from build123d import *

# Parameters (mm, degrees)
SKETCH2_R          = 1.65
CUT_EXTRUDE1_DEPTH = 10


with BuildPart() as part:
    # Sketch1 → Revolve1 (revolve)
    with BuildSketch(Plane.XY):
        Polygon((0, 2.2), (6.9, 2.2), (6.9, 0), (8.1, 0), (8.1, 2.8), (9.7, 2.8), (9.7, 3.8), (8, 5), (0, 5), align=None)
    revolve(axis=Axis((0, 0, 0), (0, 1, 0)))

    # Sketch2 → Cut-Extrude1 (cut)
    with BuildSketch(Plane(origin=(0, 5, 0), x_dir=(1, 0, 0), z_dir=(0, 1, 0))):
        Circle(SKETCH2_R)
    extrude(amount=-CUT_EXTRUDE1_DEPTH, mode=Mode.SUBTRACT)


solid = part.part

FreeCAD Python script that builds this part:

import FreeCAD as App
import Part
import Sketcher

doc = App.newDocument("Part")
body = doc.addObject("PartDesign::Body", "Body")

sketch1 = body.newObject("Sketcher::SketchObject", "Sketch")
sketch1.AttachmentSupport = (doc.getObject("XY_Plane"), [""])
sketch1.MapMode = "FlatFace"
sketch1.addGeometry([
    Part.LineSegment(App.Vector(0, 2.2, 0), App.Vector(6.9, 2.2, 0)),
    Part.LineSegment(App.Vector(6.9, 2.2, 0), App.Vector(6.9, 0, 0)),
    Part.LineSegment(App.Vector(6.9, 0, 0), App.Vector(8.1, 0, 0)),
    Part.LineSegment(App.Vector(8.1, 0, 0), App.Vector(8.1, 2.8, 0)),
    Part.LineSegment(App.Vector(8.1, 2.8, 0), App.Vector(9.7, 2.8, 0)),
    Part.LineSegment(App.Vector(9.7, 2.8, 0), App.Vector(9.7, 3.8, 0)),
    Part.LineSegment(App.Vector(9.7, 3.8, 0), App.Vector(8, 5, 0)),
    Part.LineSegment(App.Vector(8, 5, 0), App.Vector(0, 5, 0)),
    Part.LineSegment(App.Vector(0, 5, 0), App.Vector(0, 2.2, 0)),
], False)
sketch1.addConstraint([
    Sketcher.Constraint("Coincident", 0, 2, 1, 1),
    Sketcher.Constraint("Coincident", 1, 2, 2, 1),
    Sketcher.Constraint("Coincident", 2, 2, 3, 1),
    Sketcher.Constraint("Coincident", 3, 2, 4, 1),
    Sketcher.Constraint("Coincident", 4, 2, 5, 1),
    Sketcher.Constraint("Coincident", 5, 2, 6, 1),
    Sketcher.Constraint("Coincident", 6, 2, 7, 1),
    Sketcher.Constraint("Coincident", 7, 2, 8, 1),
    Sketcher.Constraint("Coincident", 8, 2, 0, 1),
    Sketcher.Constraint("Horizontal", 0),
    Sketcher.Constraint("Vertical", 1),
    Sketcher.Constraint("Horizontal", 2),
    Sketcher.Constraint("Vertical", 3),
    Sketcher.Constraint("Horizontal", 4),
    Sketcher.Constraint("Vertical", 5),
    Sketcher.Constraint("Horizontal", 7),
    Sketcher.Constraint("Vertical", 8),
    Sketcher.Constraint("PointOnObject", 1, 2, -1),
    Sketcher.Constraint("PointOnObject", 7, 2, -2),
    Sketcher.Constraint("Equal", 3, 8),
    Sketcher.Constraint("DistanceX", 7, 2, 7, 1, 8.0),
    Sketcher.Constraint("DistanceY", 5, 1, 5, 2, 1.0),
    Sketcher.Constraint("DistanceX", 0, 1, 0, 2, 6.9),
    Sketcher.Constraint("DistanceX", 2, 1, 2, 2, 1.2),
    Sketcher.Constraint("DistanceX", 4, 1, 4, 2, 1.6),
    Sketcher.Constraint("DistanceY", 1, 2, 1, 1, 2.2),
    Sketcher.Constraint("DistanceY", 3, 1, 3, 2, 2.8),
])
revolution = body.newObject("PartDesign::Revolution", "Revolution")
revolution.Profile = sketch1
revolution.ReferenceAxis = (sketch1, ["V_Axis"])
revolution.Angle = 360

sketch2 = body.newObject("Sketcher::SketchObject", "Sketch001")
sketch2.AttachmentSupport = (doc.getObject("XZ_Plane"), [""])
sketch2.MapMode = "FlatFace"
sketch2.AttachmentOffset = App.Placement(App.Vector(0, 0, -5), App.Rotation())
sketch2.addGeometry(Part.Circle(App.Vector(0, 0, 0), App.Vector(0, 0, 1), 1.65), False)
sketch2.addConstraint([
    Sketcher.Constraint("Coincident", 0, 3, -1, 1),
    Sketcher.Constraint("Diameter", 0, 3.3),
])
pocket1 = body.newObject("PartDesign::Pocket", "Pocket")
pocket1.Profile = sketch2
pocket1.Length = 10
pocket1.Reversed = True

doc.recompute()
